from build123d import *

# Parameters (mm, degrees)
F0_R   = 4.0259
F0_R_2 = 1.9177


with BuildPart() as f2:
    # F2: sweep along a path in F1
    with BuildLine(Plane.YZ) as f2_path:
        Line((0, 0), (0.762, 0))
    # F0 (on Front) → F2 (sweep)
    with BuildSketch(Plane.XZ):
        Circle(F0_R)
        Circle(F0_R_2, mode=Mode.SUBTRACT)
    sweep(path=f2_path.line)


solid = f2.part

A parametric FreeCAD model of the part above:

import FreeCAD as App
import Part
import Sketcher
Q = App.Units.Quantity

doc = App.newDocument("Part")
body = doc.addObject("PartDesign::Body", "Body")

# Sketch on XZ plane
sketch1 = doc.addObject("Sketcher::SketchObject", "Sketch")
body.addObject(sketch1)
sketch1.AttachmentSupport = (doc.XZ_Plane, [""])
sketch1.MapMode = "FlatFace"
sketch1.addGeometry(Part.Circle(App.Vector(0, 0, 0), App.Vector(0, 0, 1), 4.0259), False)
sketch1.addGeometry(Part.Circle(App.Vector(0, 0, 0), App.Vector(0, 0, 1), 1.9177), False)
sketch1.addConstraint(Sketcher.Constraint("Coincident", 0, 3, -1, 1))
sketch1.addConstraint(Sketcher.Constraint("Coincident", 1, 3, -1, 1))
sketch1.addConstraint(Sketcher.Constraint("Diameter", 0, Q("0.317 in")))
sketch1.addConstraint(Sketcher.Constraint("Diameter", 1, Q("0.151 in")))

# Sketch on XY plane
sketch2 = doc.addObject("Sketcher::SketchObject", "Sketch001")
body.addObject(sketch2)
sketch2.AttachmentSupport = (doc.XY_Plane, [""])
sketch2.MapMode = "FlatFace"
sketch2.addGeometry(Part.LineSegment(App.Vector(0, 0, 0), App.Vector(0, 0.762, 0)), False)
sketch2.addConstraint(Sketcher.Constraint("Vertical", 0))
sketch2.addConstraint(Sketcher.Constraint("Coincident", 0, 1, -1, 1))
sketch2.addConstraint(Sketcher.Constraint("DistanceY", 0, 1, 0, 2, Q("0.03 in")))
doc.recompute()

additivepipe = doc.addObject("PartDesign::AdditivePipe", "AdditivePipe")
body.addObject(additivepipe)
additivepipe.Profile = sketch1
additivepipe.Spine = (sketch2, ["Edge1"])

doc.recompute()
